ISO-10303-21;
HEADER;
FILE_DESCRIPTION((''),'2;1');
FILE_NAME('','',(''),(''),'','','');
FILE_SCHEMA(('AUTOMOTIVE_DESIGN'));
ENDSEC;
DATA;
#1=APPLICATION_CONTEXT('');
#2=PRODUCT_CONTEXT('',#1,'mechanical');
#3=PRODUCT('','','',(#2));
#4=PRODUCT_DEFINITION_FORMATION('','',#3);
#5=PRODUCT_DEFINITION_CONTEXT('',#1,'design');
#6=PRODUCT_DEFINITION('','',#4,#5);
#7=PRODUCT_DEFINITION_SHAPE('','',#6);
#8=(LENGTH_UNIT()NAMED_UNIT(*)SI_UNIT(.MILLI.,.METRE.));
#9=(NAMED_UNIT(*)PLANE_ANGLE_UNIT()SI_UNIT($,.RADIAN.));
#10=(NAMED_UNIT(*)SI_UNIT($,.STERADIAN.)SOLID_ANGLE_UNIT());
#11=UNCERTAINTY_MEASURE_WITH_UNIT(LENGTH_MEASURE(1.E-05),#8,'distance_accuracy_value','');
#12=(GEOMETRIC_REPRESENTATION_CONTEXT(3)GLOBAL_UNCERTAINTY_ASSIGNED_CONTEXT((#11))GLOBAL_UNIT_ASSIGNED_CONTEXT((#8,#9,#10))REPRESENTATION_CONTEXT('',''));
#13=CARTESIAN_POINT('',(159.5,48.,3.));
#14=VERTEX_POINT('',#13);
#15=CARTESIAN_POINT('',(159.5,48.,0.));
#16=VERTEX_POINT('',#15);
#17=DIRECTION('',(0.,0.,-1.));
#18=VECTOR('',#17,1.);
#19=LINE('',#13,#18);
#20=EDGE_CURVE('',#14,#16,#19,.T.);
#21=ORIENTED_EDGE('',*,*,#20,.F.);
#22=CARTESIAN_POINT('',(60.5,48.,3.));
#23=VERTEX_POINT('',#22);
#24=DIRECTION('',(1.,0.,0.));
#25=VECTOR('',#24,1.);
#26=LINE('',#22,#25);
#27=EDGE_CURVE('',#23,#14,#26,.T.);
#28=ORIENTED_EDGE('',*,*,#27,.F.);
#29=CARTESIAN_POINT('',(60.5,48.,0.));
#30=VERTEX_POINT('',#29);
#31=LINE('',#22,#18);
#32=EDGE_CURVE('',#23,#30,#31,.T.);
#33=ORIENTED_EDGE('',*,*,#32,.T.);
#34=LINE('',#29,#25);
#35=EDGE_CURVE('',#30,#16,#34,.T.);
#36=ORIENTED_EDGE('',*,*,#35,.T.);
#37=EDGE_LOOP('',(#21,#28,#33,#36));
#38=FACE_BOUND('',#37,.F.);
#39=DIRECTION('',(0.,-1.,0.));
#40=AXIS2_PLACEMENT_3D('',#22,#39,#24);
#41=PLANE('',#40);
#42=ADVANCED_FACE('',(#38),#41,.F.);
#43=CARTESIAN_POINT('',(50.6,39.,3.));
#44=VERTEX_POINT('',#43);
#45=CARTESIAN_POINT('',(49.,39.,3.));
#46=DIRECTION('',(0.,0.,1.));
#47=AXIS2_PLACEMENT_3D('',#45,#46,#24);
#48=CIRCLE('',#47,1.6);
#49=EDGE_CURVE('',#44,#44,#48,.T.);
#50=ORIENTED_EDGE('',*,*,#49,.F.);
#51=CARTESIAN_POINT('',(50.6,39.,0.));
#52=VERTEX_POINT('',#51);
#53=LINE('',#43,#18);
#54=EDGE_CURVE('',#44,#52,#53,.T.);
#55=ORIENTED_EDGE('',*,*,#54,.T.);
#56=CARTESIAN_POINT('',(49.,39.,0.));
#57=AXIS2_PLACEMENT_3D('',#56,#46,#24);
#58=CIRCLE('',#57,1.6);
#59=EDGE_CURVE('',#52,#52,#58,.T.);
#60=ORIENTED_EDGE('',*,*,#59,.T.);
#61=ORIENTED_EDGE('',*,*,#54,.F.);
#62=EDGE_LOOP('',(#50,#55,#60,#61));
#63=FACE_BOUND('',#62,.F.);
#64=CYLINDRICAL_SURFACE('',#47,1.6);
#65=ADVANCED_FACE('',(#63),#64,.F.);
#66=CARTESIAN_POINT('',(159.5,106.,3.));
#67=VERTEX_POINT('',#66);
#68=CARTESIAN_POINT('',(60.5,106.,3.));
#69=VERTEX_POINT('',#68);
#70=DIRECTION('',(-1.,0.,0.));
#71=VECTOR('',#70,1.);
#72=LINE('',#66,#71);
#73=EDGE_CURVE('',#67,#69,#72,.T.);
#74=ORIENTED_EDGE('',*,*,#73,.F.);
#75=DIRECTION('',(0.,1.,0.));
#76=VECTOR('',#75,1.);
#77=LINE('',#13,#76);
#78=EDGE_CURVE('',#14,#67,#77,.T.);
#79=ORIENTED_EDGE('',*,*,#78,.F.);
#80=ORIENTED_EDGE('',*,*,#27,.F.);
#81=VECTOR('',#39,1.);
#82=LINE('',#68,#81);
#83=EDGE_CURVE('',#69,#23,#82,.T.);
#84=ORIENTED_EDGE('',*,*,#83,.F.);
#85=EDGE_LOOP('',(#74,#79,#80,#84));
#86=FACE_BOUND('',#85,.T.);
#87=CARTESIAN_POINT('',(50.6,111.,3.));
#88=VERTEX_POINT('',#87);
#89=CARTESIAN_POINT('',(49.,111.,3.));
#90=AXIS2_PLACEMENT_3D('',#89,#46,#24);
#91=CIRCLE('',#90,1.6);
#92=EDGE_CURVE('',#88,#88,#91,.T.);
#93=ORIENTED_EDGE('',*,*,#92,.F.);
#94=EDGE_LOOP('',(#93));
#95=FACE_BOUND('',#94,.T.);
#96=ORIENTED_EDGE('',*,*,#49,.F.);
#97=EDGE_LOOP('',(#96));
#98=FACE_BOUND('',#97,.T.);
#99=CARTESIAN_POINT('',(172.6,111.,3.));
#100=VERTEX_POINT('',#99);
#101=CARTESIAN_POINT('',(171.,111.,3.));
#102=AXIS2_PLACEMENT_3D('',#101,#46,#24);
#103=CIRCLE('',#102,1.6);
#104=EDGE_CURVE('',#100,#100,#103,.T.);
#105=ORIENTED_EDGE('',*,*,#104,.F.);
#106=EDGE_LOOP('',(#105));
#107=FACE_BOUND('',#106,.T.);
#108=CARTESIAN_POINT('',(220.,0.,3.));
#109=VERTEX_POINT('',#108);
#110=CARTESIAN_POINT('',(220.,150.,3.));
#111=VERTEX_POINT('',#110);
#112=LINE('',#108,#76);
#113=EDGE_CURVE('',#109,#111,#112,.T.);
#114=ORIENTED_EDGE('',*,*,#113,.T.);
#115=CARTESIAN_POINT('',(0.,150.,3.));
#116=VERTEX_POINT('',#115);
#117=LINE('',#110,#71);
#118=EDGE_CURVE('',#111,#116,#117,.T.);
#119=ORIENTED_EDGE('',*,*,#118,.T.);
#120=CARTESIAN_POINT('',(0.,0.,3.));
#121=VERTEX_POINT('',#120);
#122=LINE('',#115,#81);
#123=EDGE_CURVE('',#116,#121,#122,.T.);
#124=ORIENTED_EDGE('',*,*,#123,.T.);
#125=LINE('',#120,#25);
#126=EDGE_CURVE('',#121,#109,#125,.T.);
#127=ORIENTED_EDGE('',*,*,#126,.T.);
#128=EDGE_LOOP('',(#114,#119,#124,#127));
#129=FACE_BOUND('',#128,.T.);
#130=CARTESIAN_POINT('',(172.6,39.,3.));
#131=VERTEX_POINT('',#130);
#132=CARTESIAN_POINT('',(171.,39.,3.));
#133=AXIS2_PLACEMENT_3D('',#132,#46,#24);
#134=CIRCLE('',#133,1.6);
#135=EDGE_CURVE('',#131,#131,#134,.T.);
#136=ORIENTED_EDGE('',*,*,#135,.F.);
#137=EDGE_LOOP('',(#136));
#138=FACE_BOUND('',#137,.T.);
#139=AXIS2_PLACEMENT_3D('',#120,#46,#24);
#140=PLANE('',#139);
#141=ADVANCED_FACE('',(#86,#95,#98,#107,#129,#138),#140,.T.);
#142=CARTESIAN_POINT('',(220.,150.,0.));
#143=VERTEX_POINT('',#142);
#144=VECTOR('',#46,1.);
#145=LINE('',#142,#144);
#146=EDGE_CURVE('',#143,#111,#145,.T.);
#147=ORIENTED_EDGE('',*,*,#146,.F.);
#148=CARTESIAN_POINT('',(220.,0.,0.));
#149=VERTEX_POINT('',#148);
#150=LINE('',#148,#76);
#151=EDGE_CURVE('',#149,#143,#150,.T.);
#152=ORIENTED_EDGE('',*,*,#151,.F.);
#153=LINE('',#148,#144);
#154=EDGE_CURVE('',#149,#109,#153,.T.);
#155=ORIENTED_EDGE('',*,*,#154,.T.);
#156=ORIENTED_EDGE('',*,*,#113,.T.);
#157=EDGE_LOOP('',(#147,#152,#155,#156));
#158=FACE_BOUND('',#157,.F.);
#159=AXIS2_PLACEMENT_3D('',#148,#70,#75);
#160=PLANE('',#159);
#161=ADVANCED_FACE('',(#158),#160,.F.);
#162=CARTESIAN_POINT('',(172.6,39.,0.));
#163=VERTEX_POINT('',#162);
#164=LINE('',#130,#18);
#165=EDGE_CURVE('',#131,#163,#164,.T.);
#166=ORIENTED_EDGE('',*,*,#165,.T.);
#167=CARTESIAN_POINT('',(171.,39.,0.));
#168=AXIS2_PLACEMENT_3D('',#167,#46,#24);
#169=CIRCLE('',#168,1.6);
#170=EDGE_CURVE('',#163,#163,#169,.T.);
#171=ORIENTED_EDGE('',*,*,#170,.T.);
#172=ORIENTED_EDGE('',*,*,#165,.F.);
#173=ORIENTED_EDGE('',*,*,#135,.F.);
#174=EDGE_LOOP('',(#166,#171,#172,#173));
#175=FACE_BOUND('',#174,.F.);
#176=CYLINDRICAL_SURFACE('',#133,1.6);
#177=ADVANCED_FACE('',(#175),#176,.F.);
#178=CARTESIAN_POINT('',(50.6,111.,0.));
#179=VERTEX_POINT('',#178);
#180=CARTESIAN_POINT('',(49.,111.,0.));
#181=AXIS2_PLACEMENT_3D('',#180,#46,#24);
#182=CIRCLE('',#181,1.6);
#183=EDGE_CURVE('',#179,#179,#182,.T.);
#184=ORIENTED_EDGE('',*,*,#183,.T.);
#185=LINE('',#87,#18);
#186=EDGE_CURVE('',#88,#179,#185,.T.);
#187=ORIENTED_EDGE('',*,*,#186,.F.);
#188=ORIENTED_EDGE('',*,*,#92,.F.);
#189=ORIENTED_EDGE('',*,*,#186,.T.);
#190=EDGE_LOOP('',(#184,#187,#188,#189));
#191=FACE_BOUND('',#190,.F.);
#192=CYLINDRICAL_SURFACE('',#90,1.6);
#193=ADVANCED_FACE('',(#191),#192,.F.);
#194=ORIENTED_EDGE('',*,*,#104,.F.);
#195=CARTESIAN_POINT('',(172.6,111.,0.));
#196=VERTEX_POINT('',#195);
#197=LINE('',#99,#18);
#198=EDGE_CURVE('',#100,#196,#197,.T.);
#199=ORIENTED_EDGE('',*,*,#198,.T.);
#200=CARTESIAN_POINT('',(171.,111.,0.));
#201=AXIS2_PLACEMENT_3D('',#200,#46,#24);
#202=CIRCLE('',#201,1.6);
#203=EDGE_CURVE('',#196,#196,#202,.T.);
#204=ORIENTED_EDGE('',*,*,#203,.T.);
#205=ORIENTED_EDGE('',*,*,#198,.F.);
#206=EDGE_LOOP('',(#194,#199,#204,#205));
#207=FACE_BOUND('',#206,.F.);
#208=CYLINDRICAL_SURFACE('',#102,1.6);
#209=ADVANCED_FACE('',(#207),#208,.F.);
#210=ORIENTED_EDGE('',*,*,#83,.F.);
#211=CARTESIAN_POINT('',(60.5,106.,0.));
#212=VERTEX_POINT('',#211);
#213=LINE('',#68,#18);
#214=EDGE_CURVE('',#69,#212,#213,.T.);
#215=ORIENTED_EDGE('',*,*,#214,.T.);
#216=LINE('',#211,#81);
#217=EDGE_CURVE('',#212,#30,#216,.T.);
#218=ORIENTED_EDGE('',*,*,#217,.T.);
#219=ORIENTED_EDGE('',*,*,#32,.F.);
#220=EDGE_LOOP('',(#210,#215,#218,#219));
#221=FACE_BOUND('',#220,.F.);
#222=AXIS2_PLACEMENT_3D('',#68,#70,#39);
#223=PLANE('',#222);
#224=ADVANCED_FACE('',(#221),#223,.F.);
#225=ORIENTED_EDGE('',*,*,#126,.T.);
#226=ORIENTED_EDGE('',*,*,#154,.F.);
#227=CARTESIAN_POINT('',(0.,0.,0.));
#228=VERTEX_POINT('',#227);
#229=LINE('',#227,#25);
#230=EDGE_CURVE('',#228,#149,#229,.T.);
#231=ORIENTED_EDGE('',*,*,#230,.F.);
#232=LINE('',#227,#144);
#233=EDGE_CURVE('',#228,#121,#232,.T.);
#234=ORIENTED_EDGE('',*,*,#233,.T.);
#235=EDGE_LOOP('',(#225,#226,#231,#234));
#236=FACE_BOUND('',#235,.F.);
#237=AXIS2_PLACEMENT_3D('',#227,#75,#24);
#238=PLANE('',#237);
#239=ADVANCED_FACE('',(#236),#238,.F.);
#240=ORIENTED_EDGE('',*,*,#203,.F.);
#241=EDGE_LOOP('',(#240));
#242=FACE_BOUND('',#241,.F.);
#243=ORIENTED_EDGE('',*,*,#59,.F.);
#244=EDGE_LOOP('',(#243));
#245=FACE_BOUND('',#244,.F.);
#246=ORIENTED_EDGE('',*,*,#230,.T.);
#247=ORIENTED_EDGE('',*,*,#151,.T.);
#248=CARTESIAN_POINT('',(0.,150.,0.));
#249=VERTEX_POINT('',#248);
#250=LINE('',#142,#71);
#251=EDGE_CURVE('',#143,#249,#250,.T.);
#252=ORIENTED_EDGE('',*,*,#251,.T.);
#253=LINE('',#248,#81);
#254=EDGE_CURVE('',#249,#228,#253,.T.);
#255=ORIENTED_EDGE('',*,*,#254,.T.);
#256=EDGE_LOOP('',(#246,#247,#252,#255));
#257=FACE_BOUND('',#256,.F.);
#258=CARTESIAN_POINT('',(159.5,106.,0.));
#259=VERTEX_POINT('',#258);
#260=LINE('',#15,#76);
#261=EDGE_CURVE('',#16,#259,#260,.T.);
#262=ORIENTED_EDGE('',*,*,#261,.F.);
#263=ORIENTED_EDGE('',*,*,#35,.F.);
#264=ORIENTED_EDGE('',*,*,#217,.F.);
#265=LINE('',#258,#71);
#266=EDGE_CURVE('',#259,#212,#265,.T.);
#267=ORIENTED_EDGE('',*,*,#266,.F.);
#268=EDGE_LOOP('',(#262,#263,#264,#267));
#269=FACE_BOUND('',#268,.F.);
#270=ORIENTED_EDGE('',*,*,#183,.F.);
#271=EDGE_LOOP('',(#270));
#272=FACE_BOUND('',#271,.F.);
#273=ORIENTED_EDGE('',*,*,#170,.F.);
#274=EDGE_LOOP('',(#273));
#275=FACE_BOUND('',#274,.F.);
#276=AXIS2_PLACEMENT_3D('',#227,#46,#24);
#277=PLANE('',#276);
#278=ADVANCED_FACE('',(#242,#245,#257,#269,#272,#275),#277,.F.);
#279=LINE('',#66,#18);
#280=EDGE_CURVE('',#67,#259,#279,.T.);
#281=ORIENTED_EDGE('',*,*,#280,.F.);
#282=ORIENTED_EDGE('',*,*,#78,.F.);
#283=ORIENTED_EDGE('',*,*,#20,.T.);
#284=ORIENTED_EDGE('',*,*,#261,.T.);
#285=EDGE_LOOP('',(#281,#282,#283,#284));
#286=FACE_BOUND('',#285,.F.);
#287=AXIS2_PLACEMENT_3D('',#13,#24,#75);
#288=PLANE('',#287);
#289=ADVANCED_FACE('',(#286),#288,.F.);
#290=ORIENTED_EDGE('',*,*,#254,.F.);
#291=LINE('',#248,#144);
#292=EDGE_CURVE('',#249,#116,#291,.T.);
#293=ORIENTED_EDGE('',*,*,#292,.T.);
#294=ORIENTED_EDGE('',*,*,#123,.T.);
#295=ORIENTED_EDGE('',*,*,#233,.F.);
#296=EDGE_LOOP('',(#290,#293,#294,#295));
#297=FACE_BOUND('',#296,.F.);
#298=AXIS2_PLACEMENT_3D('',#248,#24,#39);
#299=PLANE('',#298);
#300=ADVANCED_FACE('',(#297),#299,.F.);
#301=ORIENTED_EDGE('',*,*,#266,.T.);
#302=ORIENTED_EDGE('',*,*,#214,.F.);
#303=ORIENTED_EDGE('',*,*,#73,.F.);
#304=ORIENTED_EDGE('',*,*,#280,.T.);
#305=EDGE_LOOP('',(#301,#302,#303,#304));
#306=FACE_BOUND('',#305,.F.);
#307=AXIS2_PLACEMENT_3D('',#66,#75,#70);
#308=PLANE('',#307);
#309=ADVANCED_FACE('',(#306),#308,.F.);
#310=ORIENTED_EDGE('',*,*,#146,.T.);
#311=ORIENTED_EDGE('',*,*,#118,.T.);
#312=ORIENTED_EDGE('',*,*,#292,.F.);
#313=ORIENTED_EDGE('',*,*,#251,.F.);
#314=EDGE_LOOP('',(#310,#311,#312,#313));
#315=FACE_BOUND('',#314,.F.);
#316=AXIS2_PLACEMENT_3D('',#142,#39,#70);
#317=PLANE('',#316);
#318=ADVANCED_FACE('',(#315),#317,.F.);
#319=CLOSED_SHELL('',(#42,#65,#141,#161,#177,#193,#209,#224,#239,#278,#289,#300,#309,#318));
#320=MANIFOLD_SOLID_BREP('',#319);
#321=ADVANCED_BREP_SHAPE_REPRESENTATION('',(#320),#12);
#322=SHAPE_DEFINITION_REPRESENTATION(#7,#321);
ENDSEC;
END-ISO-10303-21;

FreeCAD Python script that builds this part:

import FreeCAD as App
import Part
import Sketcher
Q = App.Units.Quantity


def add_polygon(sketch, points):
    """Adds a closed chain of lines whose ends are joined by coincident constraints."""
    first, n = sketch.GeometryCount, len(points)
    for a, b in zip(points, points[1:] + points[:1]):
        sketch.addGeometry(Part.LineSegment(App.Vector(*a, 0), App.Vector(*b, 0)), False)
    for i in range(n):
        sketch.addConstraint(Sketcher.Constraint("Coincident", first + i, 2, first + (i + 1) % n, 1))

doc = App.newDocument("Part")
params = doc.addObject("Spreadsheet::Sheet", "Params")
for row, (alias, value) in enumerate([
    ("sketch1_width", "220 mm"),
    ("sketch1_height", "150 mm"),
    ("pad1_length", "3 mm"),
    ("sketch2_diameter", "3.2 mm"),
    ("sketch2_width", "99 mm"),
    ("sketch2_height", "58 mm"),
    ("pocket1_length", "3 mm"),
], start=1):
    params.set(f"A{row}", alias)
    params.set(f"B{row}", "=" + value)
    params.setAlias(f"B{row}", alias)

body = doc.addObject("PartDesign::Body", "Body")

# Sketch on XY plane
sketch1 = doc.addObject("Sketcher::SketchObject", "Sketch")
body.addObject(sketch1)
sketch1.AttachmentSupport = (doc.XY_Plane, [""])
sketch1.MapMode = "FlatFace"
add_polygon(sketch1, [(0, 150), (0, 0), (220, 0), (220, 150)])  # lines 0-3
sketch1.addConstraint(Sketcher.Constraint("Vertical", 0))
sketch1.addConstraint(Sketcher.Constraint("Horizontal", 1))
sketch1.addConstraint(Sketcher.Constraint("Vertical", 2))
sketch1.addConstraint(Sketcher.Constraint("Horizontal", 3))
sketch1.addConstraint(Sketcher.Constraint("Coincident", 0, 2, -1, 1))
sketch1.addConstraint(Sketcher.Constraint("DistanceX", 1, 1, 1, 2, Q("220 mm")))
sketch1.addConstraint(Sketcher.Constraint("DistanceY", 0, 2, 0, 1, Q("150 mm")))
sketch1.setExpression("Constraints[9]", "Params.sketch1_width")
sketch1.setExpression("Constraints[10]", "Params.sketch1_height")
pad1 = doc.addObject("PartDesign::Pad", "Pad")
body.addObject(pad1)
pad1.Profile = sketch1
pad1.setExpression("Length", "Params.pad1_length")

# Sketch on XY plane
sketch2 = doc.addObject("Sketcher::SketchObject", "Sketch001")
body.addObject(sketch2)
sketch2.AttachmentSupport = (doc.XY_Plane, [""])
sketch2.MapMode = "FlatFace"
sketch2.AttachmentOffset = App.Placement(App.Vector(0, 0, 3), App.Rotation())
sketch2.addGeometry(Part.Circle(App.Vector(49, 111, 0), App.Vector(0, 0, 1), 1.6), False)  # 0
sketch2.addGeometry(Part.Circle(App.Vector(171, 111, 0), App.Vector(0, 0, 1), 1.6), False)  # 1
sketch2.addGeometry(Part.Circle(App.Vector(171, 39, 0), App.Vector(0, 0, 1), 1.6), False)  # 2
sketch2.addGeometry(Part.Circle(App.Vector(49, 39, 0), App.Vector(0, 0, 1), 1.6), False)  # 3
add_polygon(sketch2, [(60.5, 106), (60.5, 48), (159.5, 48), (159.5, 106)])  # lines 4-7
sketch2.addConstraint(Sketcher.Constraint("Vertical", 4))
sketch2.addConstraint(Sketcher.Constraint("Horizontal", 5))
sketch2.addConstraint(Sketcher.Constraint("Vertical", 6))
sketch2.addConstraint(Sketcher.Constraint("Horizontal", 7))
sketch2.addConstraint(Sketcher.Constraint("Equal", 0, 1))
sketch2.addConstraint(Sketcher.Constraint("Equal", 1, 2))
sketch2.addConstraint(Sketcher.Constraint("Equal", 2, 3))
sketch2.addConstraint(Sketcher.Constraint("Horizontal", 0, 3, 1, 3))
sketch2.addConstraint(Sketcher.Constraint("Horizontal", 2, 3, 3, 3))
sketch2.addConstraint(Sketcher.Constraint("Vertical", 1, 3, 2, 3))
sketch2.addConstraint(Sketcher.Constraint("Vertical", 0, 3, 3, 3))
sketch2.addConstraint(Sketcher.Constraint("Diameter", 0, Q("3.2 mm")))
sketch2.addConstraint(Sketcher.Constraint("DistanceX", 5, 1, 5, 2, Q("99 mm")))
sketch2.addConstraint(Sketcher.Constraint("DistanceY", 4, 2, 4, 1, Q("58 mm")))
sketch2.addConstraint(Sketcher.Constraint("DistanceY", 3, 3, 4, 2, Q("9 mm")))
sketch2.addConstraint(Sketcher.Constraint("DistanceY", 6, 2, 1, 3, Q("5 mm")))
sketch2.addConstraint(Sketcher.Constraint("DistanceX", 3, 3, 4, 2, Q("11.5 mm")))
sketch2.addConstraint(Sketcher.Constraint("DistanceX", 5, 2, 2, 3, Q("11.5 mm")))
sketch2.addConstraint(Sketcher.Constraint("DistanceX", -1, 1, 0, 3, Q("49 mm")))
sketch2.addConstraint(Sketcher.Constraint("DistanceY", -1, 1, 0, 3, Q("111 mm")))
sketch2.setExpression("Constraints[15]", "Params.sketch2_diameter")
sketch2.setExpression("Constraints[16]", "Params.sketch2_width")
sketch2.setExpression("Constraints[17]", "Params.sketch2_height")
pocket1 = doc.addObject("PartDesign::Pocket", "Pocket")
body.addObject(pocket1)
pocket1.Profile = sketch2
pocket1.setExpression("Length", "Params.pocket1_length")

doc.recompute()
